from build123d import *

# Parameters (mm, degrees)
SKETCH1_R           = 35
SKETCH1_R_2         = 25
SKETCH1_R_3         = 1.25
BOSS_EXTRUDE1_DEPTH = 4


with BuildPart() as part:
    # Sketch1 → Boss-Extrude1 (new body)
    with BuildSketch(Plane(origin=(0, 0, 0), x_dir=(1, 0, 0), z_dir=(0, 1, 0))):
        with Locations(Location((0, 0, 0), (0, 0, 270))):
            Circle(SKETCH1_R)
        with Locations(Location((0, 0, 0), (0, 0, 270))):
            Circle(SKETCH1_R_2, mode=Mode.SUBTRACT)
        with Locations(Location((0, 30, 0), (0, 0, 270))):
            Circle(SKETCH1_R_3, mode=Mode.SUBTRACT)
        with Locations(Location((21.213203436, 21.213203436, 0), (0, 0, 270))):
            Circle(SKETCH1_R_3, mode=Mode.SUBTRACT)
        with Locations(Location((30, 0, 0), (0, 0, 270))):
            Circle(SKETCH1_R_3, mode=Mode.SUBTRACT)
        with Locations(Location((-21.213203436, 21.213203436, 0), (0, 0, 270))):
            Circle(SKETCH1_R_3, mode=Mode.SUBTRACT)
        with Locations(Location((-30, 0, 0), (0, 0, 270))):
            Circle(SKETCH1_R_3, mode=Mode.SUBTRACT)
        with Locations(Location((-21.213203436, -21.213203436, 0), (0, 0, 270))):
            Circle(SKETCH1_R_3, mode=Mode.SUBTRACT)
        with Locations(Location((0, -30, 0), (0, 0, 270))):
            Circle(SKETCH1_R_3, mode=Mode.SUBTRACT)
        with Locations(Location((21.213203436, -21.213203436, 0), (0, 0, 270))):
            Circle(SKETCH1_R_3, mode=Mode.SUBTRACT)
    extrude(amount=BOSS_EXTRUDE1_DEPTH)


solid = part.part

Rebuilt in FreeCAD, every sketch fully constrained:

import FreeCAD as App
import Part
import Sketcher
from FreeCAD import Vector

doc = App.newDocument("Part")
body = doc.addObject("PartDesign::Body", "Body")

sketch1 = body.newObject("Sketcher::SketchObject", "Sketch")
sketch1.AttachmentSupport = (doc.getObject("XZ_Plane"), [""])
sketch1.MapMode = "FlatFace"
sketch1.addGeometry(Part.Circle(Vector(0, 0, 0), Vector(0, 0, 1), 35), False)
sketch1.addGeometry(Part.Circle(Vector(-21.213203, -21.213203, 0), Vector(0, 0, 1), 1.25), False)
sketch1.addGeometry(Part.Circle(Vector(0, -30, 0), Vector(0, 0, 1), 1.25), False)
sketch1.addGeometry(Part.Circle(Vector(-30, 0, 0), Vector(0, 0, 1), 1.25), False)
sketch1.addGeometry(Part.Circle(Vector(-21.213203, 21.213203, 0), Vector(0, 0, 1), 1.25), False)
sketch1.addGeometry(Part.Circle(Vector(21.213203, -21.213203, 0), Vector(0, 0, 1), 1.25), False)
sketch1.addGeometry(Part.Circle(Vector(30, 0, 0), Vector(0, 0, 1), 1.25), False)
sketch1.addGeometry(Part.Circle(Vector(0, 0, 0), Vector(0, 0, 1), 25), False)
sketch1.addGeometry(Part.Circle(Vector(0, 30, 0), Vector(0, 0, 1), 1.25), False)
sketch1.addGeometry(Part.Circle(Vector(21.213203, 21.213203, 0), Vector(0, 0, 1), 1.25), False)
sketch1.addConstraint(Sketcher.Constraint("Coincident", 0, 3, -1, 1))
sketch1.addConstraint(Sketcher.Constraint("Coincident", 7, 3, -1, 1))
sketch1.addConstraint(Sketcher.Constraint("Equal", 1, 2))
sketch1.addConstraint(Sketcher.Constraint("Equal", 2, 3))
sketch1.addConstraint(Sketcher.Constraint("Equal", 3, 4))
sketch1.addConstraint(Sketcher.Constraint("Equal", 4, 5))
sketch1.addConstraint(Sketcher.Constraint("Equal", 5, 6))
sketch1.addConstraint(Sketcher.Constraint("Equal", 6, 8))
sketch1.addConstraint(Sketcher.Constraint("Equal", 8, 9))
sketch1.addConstraint(Sketcher.Constraint("Symmetric", 4, 3, 5, 3, -1, 1))
sketch1.addConstraint(Sketcher.Constraint("Symmetric", 3, 3, 6, 3, -1, 1))
sketch1.addConstraint(Sketcher.Constraint("Symmetric", 2, 3, 8, 3, -1, 1))
sketch1.addConstraint(Sketcher.Constraint("Symmetric", 1, 3, 9, 3, -1, 1))
sketch1.addConstraint(Sketcher.Constraint("Symmetric", 1, 3, 5, 3, -2))
sketch1.addConstraint(Sketcher.Constraint("PointOnObject", 2, 3, -2))
sketch1.addConstraint(Sketcher.Constraint("PointOnObject", 3, 3, -1))
sketch1.addConstraint(Sketcher.Constraint("Diameter", 0, 70.0))
sketch1.addConstraint(Sketcher.Constraint("Diameter", 7, 50.0))
sketch1.addConstraint(Sketcher.Constraint("Diameter", 1, 2.5))
sketch1.addConstraint(Sketcher.Constraint("DistanceY", 2, 3, -1, 1, 30.0))
sketch1.addConstraint(Sketcher.Constraint("DistanceX", 3, 3, -1, 1, 30.0))
sketch1.addConstraint(Sketcher.Constraint("DistanceX", 1, 3, -1, 1, 21.213203))
sketch1.addConstraint(Sketcher.Constraint("DistanceY", 1, 3, -1, 1, 21.213203))
pad1 = body.newObject("PartDesign::Pad", "Pad")
pad1.Profile = sketch1
pad1.Length = 4
pad1.Reversed = True

doc.recompute()
